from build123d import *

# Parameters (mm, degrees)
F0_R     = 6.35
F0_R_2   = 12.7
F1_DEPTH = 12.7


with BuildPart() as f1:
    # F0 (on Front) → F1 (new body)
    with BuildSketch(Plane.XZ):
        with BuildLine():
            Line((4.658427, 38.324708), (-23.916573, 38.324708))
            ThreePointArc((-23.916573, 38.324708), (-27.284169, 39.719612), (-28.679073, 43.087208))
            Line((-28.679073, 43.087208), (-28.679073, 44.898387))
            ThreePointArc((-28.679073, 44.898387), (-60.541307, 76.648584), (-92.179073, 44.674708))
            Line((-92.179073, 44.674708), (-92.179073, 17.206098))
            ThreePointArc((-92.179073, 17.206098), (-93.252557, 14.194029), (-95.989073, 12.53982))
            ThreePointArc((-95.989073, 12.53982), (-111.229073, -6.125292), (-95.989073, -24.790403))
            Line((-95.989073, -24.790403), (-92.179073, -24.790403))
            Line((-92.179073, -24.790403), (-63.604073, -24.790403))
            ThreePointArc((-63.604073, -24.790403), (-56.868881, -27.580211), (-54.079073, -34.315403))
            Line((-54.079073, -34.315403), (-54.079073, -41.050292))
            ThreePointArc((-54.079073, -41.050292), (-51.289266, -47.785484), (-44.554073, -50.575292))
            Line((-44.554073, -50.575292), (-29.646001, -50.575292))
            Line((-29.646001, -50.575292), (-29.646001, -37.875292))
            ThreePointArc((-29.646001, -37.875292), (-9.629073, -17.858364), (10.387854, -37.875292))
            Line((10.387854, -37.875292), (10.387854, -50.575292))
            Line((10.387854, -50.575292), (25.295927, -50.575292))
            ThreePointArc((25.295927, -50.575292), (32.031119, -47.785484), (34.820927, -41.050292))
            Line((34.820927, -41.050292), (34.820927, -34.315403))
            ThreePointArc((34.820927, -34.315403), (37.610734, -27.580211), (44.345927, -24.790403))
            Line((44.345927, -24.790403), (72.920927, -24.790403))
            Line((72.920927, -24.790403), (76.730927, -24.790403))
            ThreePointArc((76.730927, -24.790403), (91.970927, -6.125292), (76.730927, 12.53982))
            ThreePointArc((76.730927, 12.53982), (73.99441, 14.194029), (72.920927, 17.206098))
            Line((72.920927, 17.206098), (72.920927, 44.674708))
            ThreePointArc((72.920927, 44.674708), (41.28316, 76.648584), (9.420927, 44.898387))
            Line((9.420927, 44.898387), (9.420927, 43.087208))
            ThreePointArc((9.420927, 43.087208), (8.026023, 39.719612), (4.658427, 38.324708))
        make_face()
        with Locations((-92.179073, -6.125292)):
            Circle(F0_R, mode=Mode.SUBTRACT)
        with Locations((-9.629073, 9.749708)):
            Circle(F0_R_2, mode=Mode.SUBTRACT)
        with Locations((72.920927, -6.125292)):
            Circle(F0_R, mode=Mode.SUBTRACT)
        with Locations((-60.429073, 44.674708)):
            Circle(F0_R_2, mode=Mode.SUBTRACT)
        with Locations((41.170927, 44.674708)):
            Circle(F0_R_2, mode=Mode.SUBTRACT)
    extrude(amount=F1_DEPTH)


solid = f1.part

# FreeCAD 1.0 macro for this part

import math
import FreeCAD as App
import Part
import Sketcher
from FreeCAD import Vector
Q = App.Units.Quantity

doc = App.newDocument("Part")
body = doc.addObject("PartDesign::Body", "Body")

# Sketch on XZ plane
sketch1 = body.newObject("Sketcher::SketchObject", "Sketch")
sketch1.AttachmentSupport = (doc.getObject("XZ_Plane"), [""])
sketch1.MapMode = "FlatFace"
sketch1.addGeometry([
    Part.LineSegment(Vector(4.658427, 38.324708, 0), Vector(-23.916573, 38.324708, 0)),  # 0
    Part.ArcOfCircle(Part.Circle(Vector(-23.916573, 43.087208, 0), Vector(0, 0, 1), 4.7625), math.radians(-179.999998), math.radians(-90.000002)),  # 1
    Part.LineSegment(Vector(-28.679073, 43.087208, 0), Vector(-28.679073, 44.898387, 0)),  # 2
    Part.ArcOfCircle(Part.Circle(Vector(-60.429467, 44.898387, 0), Vector(0, 0, 1), 31.750394), math.radians(0), math.radians(180.403648)),  # 3
    Part.LineSegment(Vector(-92.179073, 44.674708, 0), Vector(-92.179073, 17.206098, 0)),  # 4
    Part.ArcOfCircle(Part.Circle(Vector(-96.941576, 17.2061, 0), Vector(0, 0, 1), 4.762503), math.radians(-78.463013), math.radians(-0.000027)),  # 5
    Part.ArcOfCircle(Part.Circle(Vector(-92.179073, -6.125292, 0), Vector(0, 0, 1), 19.05), math.radians(101.536958), math.radians(258.463042)),  # 6
    Part.LineSegment(Vector(-95.989073, -24.790403, 0), Vector(-63.604073, -24.790403, 0)),  # 7
    Part.ArcOfCircle(Part.Circle(Vector(-63.604073, -34.315403, 0), Vector(0, 0, 1), 9.525), math.radians(0.000002), math.radians(89.999998)),  # 8
    Part.LineSegment(Vector(-54.079073, -34.315403, 0), Vector(-54.079073, -41.050292, 0)),  # 9
    Part.ArcOfCircle(Part.Circle(Vector(-44.554074, -41.050293, 0), Vector(0, 0, 1), 9.524999), math.radians(179.999992), math.radians(270.000008)),  # 10
    Part.LineSegment(Vector(-44.554073, -50.575292, 0), Vector(-29.646001, -50.575292, 0)),  # 11
    Part.LineSegment(Vector(-29.646001, -50.575292, 0), Vector(-29.646001, -37.875292, 0)),  # 12
    Part.ArcOfCircle(Part.Circle(Vector(-9.629074, -37.875292, 0), Vector(0, 0, 1), 20.016928), math.radians(-0.000001), math.radians(180.000001)),  # 13
    Part.LineSegment(Vector(10.387854, -37.875292, 0), Vector(10.387854, -50.575292, 0)),  # 14
    Part.LineSegment(Vector(10.387854, -50.575292, 0), Vector(25.295927, -50.575292, 0)),  # 15
    Part.ArcOfCircle(Part.Circle(Vector(25.295927, -41.050292, 0), Vector(0, 0, 1), 9.525), math.radians(-89.999998), math.radians(-0.000002)),  # 16
    Part.LineSegment(Vector(34.820927, -41.050292, 0), Vector(34.820927, -34.315403, 0)),  # 17
    Part.ArcOfCircle(Part.Circle(Vector(44.345926, -34.315402, 0), Vector(0, 0, 1), 9.524999), math.radians(89.999992), math.radians(180.000008)),  # 18
    Part.LineSegment(Vector(44.345927, -24.790403, 0), Vector(76.730927, -24.790403, 0)),  # 19
    Part.ArcOfCircle(Part.Circle(Vector(72.920927, -6.125292, 0), Vector(0, 0, 1), 19.05), math.radians(-78.463042), math.radians(78.463042)),  # 20
    Part.ArcOfCircle(Part.Circle(Vector(77.683427, 17.206098, 0), Vector(0, 0, 1), 4.7625), math.radians(-179.999999), math.radians(-101.53696)),  # 21
    Part.LineSegment(Vector(72.920927, 17.206098, 0), Vector(72.920927, 44.674708, 0)),  # 22
    Part.ArcOfCircle(Part.Circle(Vector(41.171321, 44.898387, 0), Vector(0, 0, 1), 31.750394), math.radians(-0.403648), math.radians(180)),  # 23
    Part.LineSegment(Vector(9.420927, 44.898387, 0), Vector(9.420927, 43.087208, 0)),  # 24
    Part.ArcOfCircle(Part.Circle(Vector(4.658427, 43.087208, 0), Vector(0, 0, 1), 4.7625), math.radians(-89.999998), math.radians(-0.000002)),  # 25
    Part.Circle(Vector(-92.179073, -6.125292, 0), Vector(0, 0, 1), 6.35),  # 26
    Part.Circle(Vector(-9.629073, 9.749708, 0), Vector(0, 0, 1), 12.7),  # 27
    Part.Circle(Vector(72.920927, -6.125292, 0), Vector(0, 0, 1), 6.35),  # 28
    Part.Circle(Vector(-60.429073, 44.674708, 0), Vector(0, 0, 1), 12.7),  # 29
    Part.Circle(Vector(41.170927, 44.674708, 0), Vector(0, 0, 1), 12.7),  # 30
], False)
sketch1.addConstraint([
    Sketcher.Constraint("Tangent", 0, 2, 1, 2),
    Sketcher.Constraint("Tangent", 1, 1, 2, 1),
    Sketcher.Constraint("Tangent", 2, 2, 3, 1),
    Sketcher.Constraint("Coincident", 3, 2, 4, 1),
    Sketcher.Constraint("Tangent", 4, 2, 5, 2),
    Sketcher.Constraint("Tangent", 5, 1, 6, 1),
    Sketcher.Constraint("Coincident", 6, 2, 7, 1),
    Sketcher.Constraint("Tangent", 7, 2, 8, 2),
    Sketcher.Constraint("Tangent", 8, 1, 9, 1),
    Sketcher.Constraint("Tangent", 9, 2, 10, 1),
    Sketcher.Constraint("Tangent", 10, 2, 11, 1),
    Sketcher.Constraint("Coincident", 11, 2, 12, 1),
    Sketcher.Constraint("Tangent", 12, 2, 13, 2),
    Sketcher.Constraint("Tangent", 13, 1, 14, 1),
    Sketcher.Constraint("Coincident", 14, 2, 15, 1),
    Sketcher.Constraint("Tangent", 15, 2, 16, 1),
    Sketcher.Constraint("Tangent", 16, 2, 17, 1),
    Sketcher.Constraint("Tangent", 17, 2, 18, 2),
    Sketcher.Constraint("Tangent", 18, 1, 19, 1),
    Sketcher.Constraint("Coincident", 19, 2, 20, 1),
    Sketcher.Constraint("Tangent", 20, 2, 21, 2),
    Sketcher.Constraint("Tangent", 21, 1, 22, 1),
    Sketcher.Constraint("Coincident", 22, 2, 23, 1),
    Sketcher.Constraint("Tangent", 23, 2, 24, 1),
    Sketcher.Constraint("Tangent", 24, 2, 25, 2),
    Sketcher.Constraint("Tangent", 25, 1, 0, 1),
    Sketcher.Constraint("Horizontal", 0),
    Sketcher.Constraint("Vertical", 2),
    Sketcher.Constraint("Vertical", 4),
    Sketcher.Constraint("Horizontal", 7),
    Sketcher.Constraint("Vertical", 9),
    Sketcher.Constraint("Horizontal", 11),
    Sketcher.Constraint("Vertical", 12),
    Sketcher.Constraint("Vertical", 14),
    Sketcher.Constraint("Horizontal", 15),
    Sketcher.Constraint("Vertical", 17),
    Sketcher.Constraint("Horizontal", 19),
    Sketcher.Constraint("Vertical", 22),
    Sketcher.Constraint("Vertical", 24),
    Sketcher.Constraint("Coincident", 26, 3, 6, 3),
    Sketcher.Constraint("Coincident", 28, 3, 20, 3),
    Sketcher.Constraint("Equal", 8, 10),
    Sketcher.Constraint("Equal", 10, 16),
    Sketcher.Constraint("Equal", 16, 18),
    Sketcher.Constraint("Equal", 6, 20),
    Sketcher.Constraint("Equal", 1, 21),
    Sketcher.Constraint("Equal", 3, 23),
    Sketcher.Constraint("Equal", 21, 25),
    Sketcher.Constraint("Equal", 26, 28),
    Sketcher.Constraint("Equal", 27, 29),
    Sketcher.Constraint("Equal", 29, 30),
    Sketcher.Constraint("Horizontal", 10, 3, 16, 3),
    Sketcher.Constraint("Horizontal", 8, 3, 18, 3),
    Sketcher.Constraint("Horizontal", 6, 3, 20, 3),
    Sketcher.Constraint("Horizontal", 3, 3, 23, 3),
    Sketcher.Constraint("Horizontal", 29, 3, 30, 3),
    Sketcher.Constraint("Horizontal", 30, 3, 3, 2),
    Sketcher.Constraint("Horizontal", 21, 3, 4, 2),
    Sketcher.Constraint("Horizontal", 5, 1, 20, 2),
    Sketcher.Constraint("Horizontal", 3, 2, 22, 2),
    Sketcher.Constraint("Vertical", 13, 3, 27, 3),
    Sketcher.Constraint("Vertical", 26, 3, 3, 2),
    Sketcher.Constraint("Vertical", 5, 1, 6, 2),
    Sketcher.Constraint("Equal", 11, 15),
    Sketcher.Constraint("Equal", 7, 19),
    Sketcher.Constraint("Diameter", 27, Q("1 in")),
    Sketcher.Constraint("Diameter", 26, Q("0.5 in")),
    Sketcher.Constraint("Radius", 6, Q("0.75 in")),
    Sketcher.Constraint("DistanceY", 12, 1, 12, 2, Q("0.5 in")),
    Sketcher.Constraint("Radius", 1, Q("0.1875 in")),
    Sketcher.Constraint("Radius", 8, Q("0.375 in")),
    Sketcher.Constraint("DistanceX", 1, 3, 21, 3, Q("4 in")),
    Sketcher.Constraint("DistanceY", 16, 3, 27, 3, Q("2 in")),
    Sketcher.Constraint("DistanceY", 6, 3, 29, 3, Q("2 in")),
    Sketcher.Constraint("DistanceX", 8, 3, 16, 3, Q("3.5 in")),
    Sketcher.Constraint("DistanceX", 30, 3, 20, 2, Q("1.4 in")),
    Sketcher.Constraint("DistanceX", 0, 2, 0, 1, Q("1.125 in")),
    Sketcher.Constraint("DistanceY", 13, 3, 6, 3, Q("1.25 in")),
    Sketcher.Constraint("DistanceX", 6, 3, 29, 3, Q("1.25 in")),
    Sketcher.Constraint("DistanceY", 0, 2, 29, 3, Q("0.25 in")),
    Sketcher.Constraint("DistanceY", 8, 3, -1, 1, Q("1.3510001 in")),
    Sketcher.Constraint("Radius", 13, 20.016928),
    Sketcher.Constraint("DistanceY", 2, 1, 2, 2, 1.811179),
    Sketcher.Constraint("DistanceX", 11, 2, -1, 1, 29.646001),
])
pad1 = body.newObject("PartDesign::Pad", "Pad")
pad1.Profile = sketch1
pad1.Length = Q("0.5 in")

doc.recompute()
